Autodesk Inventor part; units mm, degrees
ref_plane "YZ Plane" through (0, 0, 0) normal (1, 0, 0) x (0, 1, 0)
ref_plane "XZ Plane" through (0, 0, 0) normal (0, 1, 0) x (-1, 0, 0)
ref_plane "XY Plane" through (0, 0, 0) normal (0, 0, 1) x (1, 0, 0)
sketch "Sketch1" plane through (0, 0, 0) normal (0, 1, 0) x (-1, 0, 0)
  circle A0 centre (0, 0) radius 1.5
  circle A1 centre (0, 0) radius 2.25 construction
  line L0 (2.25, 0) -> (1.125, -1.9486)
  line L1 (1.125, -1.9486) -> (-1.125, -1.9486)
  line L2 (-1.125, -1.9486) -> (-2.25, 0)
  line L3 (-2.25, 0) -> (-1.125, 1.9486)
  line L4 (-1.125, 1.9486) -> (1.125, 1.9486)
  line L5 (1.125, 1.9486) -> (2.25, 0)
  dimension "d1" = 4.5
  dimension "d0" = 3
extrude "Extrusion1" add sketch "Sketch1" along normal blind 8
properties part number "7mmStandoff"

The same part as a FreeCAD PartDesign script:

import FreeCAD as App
import Part
import Sketcher
from FreeCAD import Vector
Q = App.Units.Quantity

doc = App.newDocument("Part")
body = doc.addObject("PartDesign::Body", "Body")

# Sketch on XZ plane
sketch1 = doc.addObject("Sketcher::SketchObject", "Sketch")
body.addObject(sketch1)
sketch1.AttachmentSupport = (doc.XZ_Plane, [""])
sketch1.MapMode = "FlatFace"
sketch1.addGeometry(Part.LineSegment(Vector(-1.1, -1.9, 0), Vector(-2.2, 0, 0)), False)
sketch1.addGeometry(Part.LineSegment(Vector(-2.2, 0, 0), Vector(-1.1, 1.9, 0)), False)
sketch1.addGeometry(Part.LineSegment(Vector(-1.1, 1.9, 0), Vector(1.1, 1.9, 0)), False)
sketch1.addGeometry(Part.LineSegment(Vector(1.1, 1.9, 0), Vector(2.2, 0, 0)), False)
sketch1.addGeometry(Part.LineSegment(Vector(2.2, 0, 0), Vector(1.1, -1.9, 0)), False)
sketch1.addGeometry(Part.LineSegment(Vector(1.1, -1.9, 0), Vector(-1.1, -1.9, 0)), False)
sketch1.addGeometry(Part.Circle(Vector(0, 0, 0), Vector(0, 0, 1), 1.5), False)
sketch1.addConstraint(Sketcher.Constraint("Coincident", 0, 2, 1, 1))
sketch1.addConstraint(Sketcher.Constraint("Coincident", 1, 2, 2, 1))
sketch1.addConstraint(Sketcher.Constraint("Coincident", 2, 2, 3, 1))
sketch1.addConstraint(Sketcher.Constraint("Coincident", 3, 2, 4, 1))
sketch1.addConstraint(Sketcher.Constraint("Coincident", 4, 2, 5, 1))
sketch1.addConstraint(Sketcher.Constraint("Coincident", 5, 2, 0, 1))
sketch1.addConstraint(Sketcher.Constraint("Horizontal", 2))
sketch1.addConstraint(Sketcher.Constraint("Horizontal", 5))
sketch1.addConstraint(Sketcher.Constraint("Coincident", 6, 3, -1, 1))
sketch1.addConstraint(Sketcher.Constraint("Symmetric", 0, 2, 3, 2, -1, 1))
sketch1.addConstraint(Sketcher.Constraint("Symmetric", 1, 2, 4, 2, -1, 1))
sketch1.addConstraint(Sketcher.Constraint("PointOnObject", 0, 2, -1))
sketch1.addConstraint(Sketcher.Constraint("Parallel", 0, 3))
sketch1.addConstraint(Sketcher.Constraint("Vertical", 2, 2, 4, 2))
sketch1.addConstraint(Sketcher.Constraint("Diameter", 6, 3.0))
sketch1.addConstraint(Sketcher.Constraint("DistanceX", 0, 2, 3, 2, 4.5))
sketch1.addConstraint(Sketcher.Constraint("Angle", 0, Q("119.9995 deg")))
sketch1.addConstraint(Sketcher.Constraint("DistanceX", 2, 1, 2, 2, 2.25))
pad1 = doc.addObject("PartDesign::Pad", "Pad")
body.addObject(pad1)
pad1.Profile = sketch1
pad1.Length = 8
pad1.Reversed = True

doc.recompute()
